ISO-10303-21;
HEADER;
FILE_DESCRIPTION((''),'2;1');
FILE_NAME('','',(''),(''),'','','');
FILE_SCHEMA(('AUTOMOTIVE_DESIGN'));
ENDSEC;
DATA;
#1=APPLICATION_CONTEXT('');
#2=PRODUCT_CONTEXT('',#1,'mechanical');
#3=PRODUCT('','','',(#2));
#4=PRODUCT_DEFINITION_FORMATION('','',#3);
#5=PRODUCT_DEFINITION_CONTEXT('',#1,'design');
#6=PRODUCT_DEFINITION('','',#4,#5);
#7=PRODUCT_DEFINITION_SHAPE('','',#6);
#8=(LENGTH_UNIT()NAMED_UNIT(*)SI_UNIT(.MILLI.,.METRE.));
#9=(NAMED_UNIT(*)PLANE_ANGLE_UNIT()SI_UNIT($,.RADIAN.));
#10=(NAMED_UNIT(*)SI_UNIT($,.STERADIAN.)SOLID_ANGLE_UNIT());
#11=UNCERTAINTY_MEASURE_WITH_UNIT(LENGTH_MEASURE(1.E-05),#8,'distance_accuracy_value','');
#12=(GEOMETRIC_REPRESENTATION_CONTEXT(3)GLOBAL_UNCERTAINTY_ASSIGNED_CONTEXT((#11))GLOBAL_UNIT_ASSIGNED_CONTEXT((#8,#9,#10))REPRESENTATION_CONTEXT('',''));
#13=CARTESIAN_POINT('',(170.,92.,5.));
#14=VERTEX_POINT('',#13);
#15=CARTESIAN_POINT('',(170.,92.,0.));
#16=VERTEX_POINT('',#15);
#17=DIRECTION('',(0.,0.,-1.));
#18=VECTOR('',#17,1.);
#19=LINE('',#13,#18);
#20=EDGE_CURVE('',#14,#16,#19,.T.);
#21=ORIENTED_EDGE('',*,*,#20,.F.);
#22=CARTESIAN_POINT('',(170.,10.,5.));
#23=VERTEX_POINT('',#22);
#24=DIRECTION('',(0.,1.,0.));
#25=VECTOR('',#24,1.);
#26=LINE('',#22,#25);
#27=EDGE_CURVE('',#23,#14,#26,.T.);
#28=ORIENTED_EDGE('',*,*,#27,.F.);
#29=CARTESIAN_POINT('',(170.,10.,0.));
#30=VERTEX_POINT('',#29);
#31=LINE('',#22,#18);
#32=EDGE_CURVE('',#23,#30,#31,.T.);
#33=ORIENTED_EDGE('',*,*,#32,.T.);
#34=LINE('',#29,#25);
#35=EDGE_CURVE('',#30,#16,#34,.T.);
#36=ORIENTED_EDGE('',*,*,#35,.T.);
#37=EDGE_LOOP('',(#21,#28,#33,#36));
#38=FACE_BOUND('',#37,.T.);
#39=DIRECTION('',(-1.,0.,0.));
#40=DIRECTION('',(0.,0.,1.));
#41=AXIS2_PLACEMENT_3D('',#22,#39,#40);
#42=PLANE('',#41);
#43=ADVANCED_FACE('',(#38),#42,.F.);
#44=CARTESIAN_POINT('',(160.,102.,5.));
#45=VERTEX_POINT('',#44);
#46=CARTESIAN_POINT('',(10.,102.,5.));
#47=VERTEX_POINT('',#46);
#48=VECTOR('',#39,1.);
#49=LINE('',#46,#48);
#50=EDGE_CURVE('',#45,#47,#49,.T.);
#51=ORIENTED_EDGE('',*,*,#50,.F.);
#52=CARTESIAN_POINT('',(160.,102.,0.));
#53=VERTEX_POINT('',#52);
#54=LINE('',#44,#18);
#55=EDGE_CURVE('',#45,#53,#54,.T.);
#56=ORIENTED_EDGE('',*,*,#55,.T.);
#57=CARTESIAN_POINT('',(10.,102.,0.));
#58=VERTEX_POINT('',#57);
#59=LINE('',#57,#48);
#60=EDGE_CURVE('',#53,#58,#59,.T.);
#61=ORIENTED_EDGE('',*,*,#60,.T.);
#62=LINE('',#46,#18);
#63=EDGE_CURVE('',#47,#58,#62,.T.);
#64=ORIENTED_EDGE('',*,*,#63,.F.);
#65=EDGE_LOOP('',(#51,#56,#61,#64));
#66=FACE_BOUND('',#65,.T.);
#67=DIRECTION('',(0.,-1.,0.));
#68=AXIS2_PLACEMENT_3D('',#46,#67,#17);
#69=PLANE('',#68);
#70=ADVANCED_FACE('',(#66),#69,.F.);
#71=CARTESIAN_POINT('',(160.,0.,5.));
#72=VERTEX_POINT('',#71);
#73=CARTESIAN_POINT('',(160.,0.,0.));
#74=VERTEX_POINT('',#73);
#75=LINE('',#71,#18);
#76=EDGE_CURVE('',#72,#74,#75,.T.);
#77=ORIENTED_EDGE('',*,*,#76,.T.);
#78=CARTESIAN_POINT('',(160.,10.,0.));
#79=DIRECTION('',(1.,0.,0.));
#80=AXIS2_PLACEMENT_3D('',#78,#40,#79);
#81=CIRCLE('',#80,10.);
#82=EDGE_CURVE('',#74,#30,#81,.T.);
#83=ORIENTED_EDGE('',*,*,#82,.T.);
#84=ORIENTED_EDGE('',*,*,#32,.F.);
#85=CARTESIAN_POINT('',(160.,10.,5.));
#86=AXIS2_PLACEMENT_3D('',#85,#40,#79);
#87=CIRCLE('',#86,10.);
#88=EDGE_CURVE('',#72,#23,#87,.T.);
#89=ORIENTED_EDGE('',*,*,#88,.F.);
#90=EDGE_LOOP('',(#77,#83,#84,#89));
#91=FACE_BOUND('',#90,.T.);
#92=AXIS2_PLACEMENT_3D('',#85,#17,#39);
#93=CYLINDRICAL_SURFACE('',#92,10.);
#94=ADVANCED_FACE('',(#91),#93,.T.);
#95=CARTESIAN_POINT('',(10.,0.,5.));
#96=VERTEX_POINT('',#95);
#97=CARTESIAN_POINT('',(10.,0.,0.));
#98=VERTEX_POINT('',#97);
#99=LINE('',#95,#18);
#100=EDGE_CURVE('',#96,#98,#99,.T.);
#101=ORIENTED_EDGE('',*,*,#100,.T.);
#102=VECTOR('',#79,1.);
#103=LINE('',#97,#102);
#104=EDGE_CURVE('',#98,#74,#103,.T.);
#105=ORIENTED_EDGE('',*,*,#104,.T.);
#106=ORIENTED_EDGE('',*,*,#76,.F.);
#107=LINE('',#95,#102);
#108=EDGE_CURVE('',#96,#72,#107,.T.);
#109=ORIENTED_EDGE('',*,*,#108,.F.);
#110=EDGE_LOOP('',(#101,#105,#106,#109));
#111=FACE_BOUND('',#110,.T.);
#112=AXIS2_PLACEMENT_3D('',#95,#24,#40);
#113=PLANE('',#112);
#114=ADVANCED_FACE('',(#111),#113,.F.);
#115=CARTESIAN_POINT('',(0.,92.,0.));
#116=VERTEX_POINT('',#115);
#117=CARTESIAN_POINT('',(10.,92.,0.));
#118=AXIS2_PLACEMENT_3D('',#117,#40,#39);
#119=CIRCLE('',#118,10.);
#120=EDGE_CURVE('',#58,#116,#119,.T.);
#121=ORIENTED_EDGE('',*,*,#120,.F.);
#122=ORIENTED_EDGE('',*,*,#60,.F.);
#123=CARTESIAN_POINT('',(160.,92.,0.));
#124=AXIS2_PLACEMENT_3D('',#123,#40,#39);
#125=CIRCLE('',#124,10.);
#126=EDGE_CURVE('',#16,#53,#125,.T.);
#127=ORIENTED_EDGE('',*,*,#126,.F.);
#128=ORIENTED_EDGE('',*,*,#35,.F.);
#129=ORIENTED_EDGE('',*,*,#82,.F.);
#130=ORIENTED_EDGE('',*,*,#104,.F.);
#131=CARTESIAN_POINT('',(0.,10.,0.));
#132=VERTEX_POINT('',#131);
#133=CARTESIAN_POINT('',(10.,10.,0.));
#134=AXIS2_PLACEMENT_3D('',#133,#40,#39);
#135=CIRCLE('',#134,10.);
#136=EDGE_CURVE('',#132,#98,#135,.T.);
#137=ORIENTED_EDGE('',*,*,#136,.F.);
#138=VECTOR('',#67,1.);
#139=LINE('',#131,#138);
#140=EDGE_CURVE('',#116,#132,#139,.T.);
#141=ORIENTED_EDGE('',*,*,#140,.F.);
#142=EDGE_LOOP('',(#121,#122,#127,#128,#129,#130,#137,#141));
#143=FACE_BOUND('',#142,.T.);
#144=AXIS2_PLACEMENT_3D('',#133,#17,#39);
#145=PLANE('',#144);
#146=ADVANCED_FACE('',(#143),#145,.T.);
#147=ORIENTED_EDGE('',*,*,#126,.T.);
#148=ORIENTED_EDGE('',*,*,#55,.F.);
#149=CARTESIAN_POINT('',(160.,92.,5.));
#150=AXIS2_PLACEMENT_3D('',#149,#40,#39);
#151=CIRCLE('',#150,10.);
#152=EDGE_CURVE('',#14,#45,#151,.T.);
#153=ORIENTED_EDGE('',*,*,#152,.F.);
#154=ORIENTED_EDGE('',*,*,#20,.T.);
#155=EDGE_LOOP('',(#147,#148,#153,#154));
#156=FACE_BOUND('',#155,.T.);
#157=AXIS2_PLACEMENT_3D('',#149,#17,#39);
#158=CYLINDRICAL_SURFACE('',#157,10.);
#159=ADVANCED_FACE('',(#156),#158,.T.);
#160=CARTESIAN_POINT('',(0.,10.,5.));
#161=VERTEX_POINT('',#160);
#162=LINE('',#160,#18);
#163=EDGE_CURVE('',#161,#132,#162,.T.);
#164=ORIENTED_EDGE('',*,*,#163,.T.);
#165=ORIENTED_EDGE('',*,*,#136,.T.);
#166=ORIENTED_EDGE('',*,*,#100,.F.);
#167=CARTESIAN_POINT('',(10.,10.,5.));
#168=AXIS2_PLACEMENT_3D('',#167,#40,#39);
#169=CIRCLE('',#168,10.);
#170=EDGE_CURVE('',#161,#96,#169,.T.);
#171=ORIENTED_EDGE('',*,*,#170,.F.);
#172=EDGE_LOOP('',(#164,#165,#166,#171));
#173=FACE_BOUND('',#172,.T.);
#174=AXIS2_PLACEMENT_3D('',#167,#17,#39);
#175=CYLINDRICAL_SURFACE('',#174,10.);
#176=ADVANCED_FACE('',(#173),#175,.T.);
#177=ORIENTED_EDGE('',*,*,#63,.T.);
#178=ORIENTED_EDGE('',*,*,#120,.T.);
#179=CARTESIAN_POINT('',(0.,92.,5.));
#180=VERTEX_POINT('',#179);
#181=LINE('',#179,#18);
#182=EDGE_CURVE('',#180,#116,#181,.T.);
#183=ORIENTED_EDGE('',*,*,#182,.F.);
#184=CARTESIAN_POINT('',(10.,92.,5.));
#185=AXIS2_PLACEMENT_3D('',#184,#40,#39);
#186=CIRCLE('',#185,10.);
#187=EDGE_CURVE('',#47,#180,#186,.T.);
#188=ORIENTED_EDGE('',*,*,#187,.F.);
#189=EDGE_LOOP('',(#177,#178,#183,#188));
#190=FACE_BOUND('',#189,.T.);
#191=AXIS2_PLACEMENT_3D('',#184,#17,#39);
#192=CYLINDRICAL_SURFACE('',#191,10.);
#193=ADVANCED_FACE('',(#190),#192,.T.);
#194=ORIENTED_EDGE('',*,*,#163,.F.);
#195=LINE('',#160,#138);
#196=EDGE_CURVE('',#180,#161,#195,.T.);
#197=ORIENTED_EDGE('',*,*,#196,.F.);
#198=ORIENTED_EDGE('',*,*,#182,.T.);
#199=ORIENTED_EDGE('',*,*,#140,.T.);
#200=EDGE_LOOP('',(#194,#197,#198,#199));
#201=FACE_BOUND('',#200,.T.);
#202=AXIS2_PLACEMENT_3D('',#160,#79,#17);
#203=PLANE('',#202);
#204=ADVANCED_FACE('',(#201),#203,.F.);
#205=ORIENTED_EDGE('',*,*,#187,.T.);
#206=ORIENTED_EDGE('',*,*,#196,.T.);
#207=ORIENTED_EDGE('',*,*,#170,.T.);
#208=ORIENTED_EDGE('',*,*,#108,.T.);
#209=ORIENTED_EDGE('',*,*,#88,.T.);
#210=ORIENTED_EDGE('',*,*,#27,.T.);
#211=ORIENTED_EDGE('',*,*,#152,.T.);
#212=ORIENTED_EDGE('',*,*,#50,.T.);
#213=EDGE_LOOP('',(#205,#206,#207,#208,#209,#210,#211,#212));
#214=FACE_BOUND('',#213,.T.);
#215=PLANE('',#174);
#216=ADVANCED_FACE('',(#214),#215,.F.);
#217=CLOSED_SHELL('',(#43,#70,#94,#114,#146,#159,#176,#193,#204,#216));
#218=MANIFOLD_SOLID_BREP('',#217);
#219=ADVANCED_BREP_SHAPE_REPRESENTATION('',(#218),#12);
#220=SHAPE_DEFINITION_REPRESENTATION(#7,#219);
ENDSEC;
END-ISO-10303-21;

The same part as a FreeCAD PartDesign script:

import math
import FreeCAD as App
import Part
import Sketcher

doc = App.newDocument("Part")
body = doc.addObject("PartDesign::Body", "Body")

# Sketch on XY plane
sketch1 = body.newObject("Sketcher::SketchObject", "Sketch")
sketch1.AttachmentSupport = (doc.getObject("XY_Plane"), [""])
sketch1.MapMode = "FlatFace"
sketch1.addGeometry(Part.LineSegment(App.Vector(10, 0, 0), App.Vector(160, 0, 0)), False)
sketch1.addGeometry(Part.ArcOfCircle(Part.Circle(App.Vector(160, 10, 0), App.Vector(0, 0, 1), 10), math.radians(-90), math.radians(0)), False)
sketch1.addGeometry(Part.LineSegment(App.Vector(170, 10, 0), App.Vector(170, 92, 0)), False)
sketch1.addGeometry(Part.ArcOfCircle(Part.Circle(App.Vector(160, 92, 0), App.Vector(0, 0, 1), 10), math.radians(0), math.radians(90)), False)
sketch1.addGeometry(Part.LineSegment(App.Vector(160, 102, 0), App.Vector(10, 102, 0)), False)
sketch1.addGeometry(Part.ArcOfCircle(Part.Circle(App.Vector(10, 92, 0), App.Vector(0, 0, 1), 10), math.radians(90), math.radians(180)), False)
sketch1.addGeometry(Part.LineSegment(App.Vector(0, 92, 0), App.Vector(0, 10, 0)), False)
sketch1.addGeometry(Part.ArcOfCircle(Part.Circle(App.Vector(10, 10, 0), App.Vector(0, 0, 1), 10), math.radians(180), math.radians(270)), False)
sketch1.addConstraint(Sketcher.Constraint("Tangent", 0, 2, 1, 1))
sketch1.addConstraint(Sketcher.Constraint("Tangent", 1, 2, 2, 1))
sketch1.addConstraint(Sketcher.Constraint("Tangent", 2, 2, 3, 1))
sketch1.addConstraint(Sketcher.Constraint("Tangent", 3, 2, 4, 1))
sketch1.addConstraint(Sketcher.Constraint("Tangent", 4, 2, 5, 1))
sketch1.addConstraint(Sketcher.Constraint("Tangent", 5, 2, 6, 1))
sketch1.addConstraint(Sketcher.Constraint("Tangent", 6, 2, 7, 1))
sketch1.addConstraint(Sketcher.Constraint("Tangent", 7, 2, 0, 1))
sketch1.addConstraint(Sketcher.Constraint("Horizontal", 0))
sketch1.addConstraint(Sketcher.Constraint("Vertical", 2))
sketch1.addConstraint(Sketcher.Constraint("Horizontal", 4))
sketch1.addConstraint(Sketcher.Constraint("Vertical", 6))
sketch1.addConstraint(Sketcher.Constraint("Equal", 1, 3))
sketch1.addConstraint(Sketcher.Constraint("Equal", 3, 5))
sketch1.addConstraint(Sketcher.Constraint("Equal", 5, 7))
sketch1.addConstraint(Sketcher.Constraint("PointOnObject", 0, 2, -1))
sketch1.addConstraint(Sketcher.Constraint("PointOnObject", 5, 2, -2))
sketch1.addConstraint(Sketcher.Constraint("Radius", 1, 10.0))
sketch1.addConstraint(Sketcher.Constraint("DistanceX", 0, 1, 0, 2, 150.0))
sketch1.addConstraint(Sketcher.Constraint("DistanceY", 2, 1, 2, 2, 82.0))
pad1 = body.newObject("PartDesign::Pad", "Pad")
pad1.Profile = sketch1
pad1.Length = 5

doc.recompute()
